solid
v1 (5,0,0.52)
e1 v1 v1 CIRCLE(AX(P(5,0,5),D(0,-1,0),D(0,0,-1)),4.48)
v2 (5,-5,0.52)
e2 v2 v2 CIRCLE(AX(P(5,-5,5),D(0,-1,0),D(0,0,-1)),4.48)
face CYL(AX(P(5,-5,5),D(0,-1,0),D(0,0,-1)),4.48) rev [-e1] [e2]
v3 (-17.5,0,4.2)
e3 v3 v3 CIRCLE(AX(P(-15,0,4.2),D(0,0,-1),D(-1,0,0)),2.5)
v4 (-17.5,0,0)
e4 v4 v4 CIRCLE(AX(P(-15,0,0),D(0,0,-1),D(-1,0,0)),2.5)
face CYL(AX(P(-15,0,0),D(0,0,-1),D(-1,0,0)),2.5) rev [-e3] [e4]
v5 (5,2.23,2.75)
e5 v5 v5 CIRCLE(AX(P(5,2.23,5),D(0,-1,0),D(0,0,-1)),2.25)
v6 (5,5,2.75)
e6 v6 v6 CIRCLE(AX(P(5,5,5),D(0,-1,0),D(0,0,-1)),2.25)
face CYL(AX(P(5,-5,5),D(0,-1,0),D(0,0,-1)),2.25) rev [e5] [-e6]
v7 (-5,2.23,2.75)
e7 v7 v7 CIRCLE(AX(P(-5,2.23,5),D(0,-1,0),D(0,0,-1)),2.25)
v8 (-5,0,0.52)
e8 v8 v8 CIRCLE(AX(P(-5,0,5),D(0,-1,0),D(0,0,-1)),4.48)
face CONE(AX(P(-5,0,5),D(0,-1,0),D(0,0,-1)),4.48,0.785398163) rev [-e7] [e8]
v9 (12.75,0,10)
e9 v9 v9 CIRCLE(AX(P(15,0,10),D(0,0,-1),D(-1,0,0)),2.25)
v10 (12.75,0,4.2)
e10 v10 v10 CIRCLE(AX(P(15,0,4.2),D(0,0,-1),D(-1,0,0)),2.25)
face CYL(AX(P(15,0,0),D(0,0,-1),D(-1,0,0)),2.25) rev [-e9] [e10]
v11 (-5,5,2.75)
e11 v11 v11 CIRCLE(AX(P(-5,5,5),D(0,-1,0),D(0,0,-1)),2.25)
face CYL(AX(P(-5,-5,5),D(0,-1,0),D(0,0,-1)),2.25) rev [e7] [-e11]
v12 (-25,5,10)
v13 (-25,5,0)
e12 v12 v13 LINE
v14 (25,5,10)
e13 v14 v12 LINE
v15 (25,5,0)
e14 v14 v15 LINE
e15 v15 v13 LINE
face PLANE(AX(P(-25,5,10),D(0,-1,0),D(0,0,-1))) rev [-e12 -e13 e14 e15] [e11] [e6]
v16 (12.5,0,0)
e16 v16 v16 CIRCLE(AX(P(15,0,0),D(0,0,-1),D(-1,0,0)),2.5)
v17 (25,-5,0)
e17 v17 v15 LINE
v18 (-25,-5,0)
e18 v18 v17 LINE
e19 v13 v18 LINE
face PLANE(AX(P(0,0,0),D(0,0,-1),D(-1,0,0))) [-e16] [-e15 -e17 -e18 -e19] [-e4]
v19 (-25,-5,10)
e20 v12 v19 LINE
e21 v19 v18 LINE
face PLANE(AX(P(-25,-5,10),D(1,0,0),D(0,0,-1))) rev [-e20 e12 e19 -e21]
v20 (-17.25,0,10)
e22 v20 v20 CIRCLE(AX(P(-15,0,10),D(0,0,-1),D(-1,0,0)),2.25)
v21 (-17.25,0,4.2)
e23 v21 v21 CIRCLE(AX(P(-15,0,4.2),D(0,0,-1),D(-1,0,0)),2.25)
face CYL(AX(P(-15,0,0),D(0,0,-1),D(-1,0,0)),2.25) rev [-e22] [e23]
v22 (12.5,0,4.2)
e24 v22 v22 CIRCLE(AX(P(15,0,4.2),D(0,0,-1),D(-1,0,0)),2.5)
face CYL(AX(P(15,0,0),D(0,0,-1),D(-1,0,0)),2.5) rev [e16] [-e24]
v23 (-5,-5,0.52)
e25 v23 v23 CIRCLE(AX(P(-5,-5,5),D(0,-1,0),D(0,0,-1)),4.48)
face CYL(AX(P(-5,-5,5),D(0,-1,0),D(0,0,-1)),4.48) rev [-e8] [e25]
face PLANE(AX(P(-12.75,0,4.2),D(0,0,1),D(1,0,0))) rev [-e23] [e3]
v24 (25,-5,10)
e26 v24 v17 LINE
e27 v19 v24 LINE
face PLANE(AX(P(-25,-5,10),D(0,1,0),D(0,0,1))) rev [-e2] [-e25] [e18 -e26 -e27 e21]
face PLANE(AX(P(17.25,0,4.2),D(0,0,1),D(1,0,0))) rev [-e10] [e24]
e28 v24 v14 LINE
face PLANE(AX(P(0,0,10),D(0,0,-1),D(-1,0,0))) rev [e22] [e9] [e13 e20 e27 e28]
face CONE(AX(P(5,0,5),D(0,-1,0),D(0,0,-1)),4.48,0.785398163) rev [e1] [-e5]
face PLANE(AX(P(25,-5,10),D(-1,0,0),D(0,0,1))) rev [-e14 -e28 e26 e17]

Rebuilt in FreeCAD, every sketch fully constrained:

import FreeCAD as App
import Part
import Sketcher
Q = App.Units.Quantity


def add_polygon(sketch, points):
    """Adds a closed chain of lines whose ends are joined by coincident constraints."""
    first, n = sketch.GeometryCount, len(points)
    for a, b in zip(points, points[1:] + points[:1]):
        sketch.addGeometry(Part.LineSegment(App.Vector(*a, 0), App.Vector(*b, 0)), False)
    for i in range(n):
        sketch.addConstraint(Sketcher.Constraint("Coincident", first + i, 2, first + (i + 1) % n, 1))

doc = App.newDocument("Part")
params = doc.addObject("Spreadsheet::Sheet", "Params")
for row, (alias, value) in enumerate([
    ("sketch1_width", "50 mm"),
    ("sketch1_height", "10 mm"),
    ("pad1_length", "10 mm"),
    ("sketch2_width", "10 mm"),
    ("sketch2_width2", "5 mm"),
    ("sketch2_width3", "2.77 mm"),
    ("sketch2_height", "4.48 mm"),
    ("groove_angle", "360 deg"),
    ("linearpattern_pitch", "10 mm"),
    ("sketch3_diameter", "4.5 mm"),
    ("hole_diameter", "4.5 mm"),
    ("hole_cbore_diameter", "5 mm"),
    ("hole_cbore_depth", "4.2 mm"),
], start=1):
    params.set(f"A{row}", alias)
    params.set(f"B{row}", "=" + value)
    params.setAlias(f"B{row}", alias)

body = doc.addObject("PartDesign::Body", "Body")

# Sketch on XY plane
sketch1 = body.newObject("Sketcher::SketchObject", "Sketch")
sketch1.AttachmentSupport = (doc.getObject("XY_Plane"), [""])
sketch1.MapMode = "FlatFace"
add_polygon(sketch1, [(-25, 5), (-25, -5), (25, -5), (25, 5)])  # lines 0-3
sketch1.addConstraint([
    Sketcher.Constraint("Vertical", 0),
    Sketcher.Constraint("Horizontal", 1),
    Sketcher.Constraint("Vertical", 2),
    Sketcher.Constraint("Horizontal", 3),
    Sketcher.Constraint("Symmetric", 0, 2, 2, 2, -1, 1),
    Sketcher.Constraint("DistanceX", 1, 1, 1, 2, 50.0),
    Sketcher.Constraint("DistanceY", 0, 2, 0, 1, 10.0),
])
sketch1.setExpression("Constraints[9]", "Params.sketch1_width")
sketch1.setExpression("Constraints[10]", "Params.sketch1_height")
pad1 = body.newObject("PartDesign::Pad", "Pad")
pad1.Profile = sketch1
pad1.setExpression("Length", "Params.pad1_length")

# Sketch on YZ plane
sketch2 = body.newObject("Sketcher::SketchObject", "Sketch001")
sketch2.AttachmentSupport = (doc.getObject("YZ_Plane"), [""])
sketch2.MapMode = "FlatFace"
sketch2.AttachmentOffset = App.Placement(App.Vector(0, 0, 5), App.Rotation())
add_polygon(sketch2, [(5, 5), (-5, 5), (-5, 0.52), (0, 0.52), (2.23, 2.75), (5, 2.75)])  # lines 0-5
sketch2.addGeometry(Part.LineSegment(App.Vector(-5, 5, 0), App.Vector(5, 5, 0)), True)  # axis
sketch2.addConstraint([
    Sketcher.Constraint("Horizontal", 0),
    Sketcher.Constraint("Vertical", 1),
    Sketcher.Constraint("Horizontal", 2),
    Sketcher.Constraint("Horizontal", 4),
    Sketcher.Constraint("Vertical", 5),
    Sketcher.Constraint("Horizontal", 6),
    Sketcher.Constraint("Coincident", 6, 1, 0, 2),
    Sketcher.Constraint("PointOnObject", 2, 2, -2),
    Sketcher.Constraint("Vertical", 4, 2, 6, 2),
    Sketcher.Constraint("DistanceX", 0, 2, 0, 1, 10.0),
    Sketcher.Constraint("DistanceX", 2, 1, 2, 2, 5.0),
    Sketcher.Constraint("Angle", 3, Q("45 deg")),
    Sketcher.Constraint("DistanceY", -1, 1, 0, 2, 5.0),
    Sketcher.Constraint("DistanceX", 4, 1, 4, 2, 2.77),
    Sketcher.Constraint("DistanceY", 1, 2, 1, 1, 4.48),
])
sketch2.setExpression("Constraints[15]", "Params.sketch2_width")
sketch2.setExpression("Constraints[16]", "Params.sketch2_width2")
sketch2.setExpression("Constraints[19]", "Params.sketch2_width3")
sketch2.setExpression("Constraints[20]", "Params.sketch2_height")
groove = body.newObject("PartDesign::Groove", "Groove")
groove.Profile = sketch2
groove.ReferenceAxis = (sketch2, ["Axis0"])
groove.setExpression("Angle", "Params.groove_angle")
doc.recompute()

linearpattern = body.newObject("PartDesign::LinearPattern", "LinearPattern")
linearpattern.Originals = [groove]
linearpattern.Direction = (doc.getObject("X_Axis"), [""])
linearpattern.Mode = "offset"
linearpattern.setExpression("Offset", "Params.linearpattern_pitch")
linearpattern.Occurrences = 2
linearpattern.Reversed = True
body.Tip = linearpattern

# Sketch on XY plane
sketch3 = body.newObject("Sketcher::SketchObject", "Sketch002")
sketch3.AttachmentSupport = (doc.getObject("XY_Plane"), [""])
sketch3.MapMode = "FlatFace"
sketch3.addGeometry([
    Part.Circle(App.Vector(15, 0, 0), App.Vector(0, 0, 1), 2.25),
    Part.Circle(App.Vector(-15, 0, 0), App.Vector(0, 0, 1), 2.25),
], False)
sketch3.addConstraint([
    Sketcher.Constraint("Equal", 0, 1),
    Sketcher.Constraint("Symmetric", 0, 3, 1, 3, -1, 1),
    Sketcher.Constraint("PointOnObject", 0, 3, -1),
    Sketcher.Constraint("Diameter", 0, 4.5),
    Sketcher.Constraint("DistanceX", -1, 1, 0, 3, 15.0),
])
sketch3.setExpression("Constraints[3]", "Params.sketch3_diameter")
doc.recompute()
hole = body.newObject("PartDesign::Hole", "Hole")
hole.Profile = sketch3
hole.ThreadType = "None"
hole.setExpression("Diameter", "Params.hole_diameter")
hole.DepthType = "ThroughAll"
hole.HoleCutType = "Counterbore"
hole.setExpression("HoleCutDiameter", "Params.hole_cbore_diameter")
hole.setExpression("HoleCutDepth", "Params.hole_cbore_depth")
hole.Reversed = True

doc.recompute()
